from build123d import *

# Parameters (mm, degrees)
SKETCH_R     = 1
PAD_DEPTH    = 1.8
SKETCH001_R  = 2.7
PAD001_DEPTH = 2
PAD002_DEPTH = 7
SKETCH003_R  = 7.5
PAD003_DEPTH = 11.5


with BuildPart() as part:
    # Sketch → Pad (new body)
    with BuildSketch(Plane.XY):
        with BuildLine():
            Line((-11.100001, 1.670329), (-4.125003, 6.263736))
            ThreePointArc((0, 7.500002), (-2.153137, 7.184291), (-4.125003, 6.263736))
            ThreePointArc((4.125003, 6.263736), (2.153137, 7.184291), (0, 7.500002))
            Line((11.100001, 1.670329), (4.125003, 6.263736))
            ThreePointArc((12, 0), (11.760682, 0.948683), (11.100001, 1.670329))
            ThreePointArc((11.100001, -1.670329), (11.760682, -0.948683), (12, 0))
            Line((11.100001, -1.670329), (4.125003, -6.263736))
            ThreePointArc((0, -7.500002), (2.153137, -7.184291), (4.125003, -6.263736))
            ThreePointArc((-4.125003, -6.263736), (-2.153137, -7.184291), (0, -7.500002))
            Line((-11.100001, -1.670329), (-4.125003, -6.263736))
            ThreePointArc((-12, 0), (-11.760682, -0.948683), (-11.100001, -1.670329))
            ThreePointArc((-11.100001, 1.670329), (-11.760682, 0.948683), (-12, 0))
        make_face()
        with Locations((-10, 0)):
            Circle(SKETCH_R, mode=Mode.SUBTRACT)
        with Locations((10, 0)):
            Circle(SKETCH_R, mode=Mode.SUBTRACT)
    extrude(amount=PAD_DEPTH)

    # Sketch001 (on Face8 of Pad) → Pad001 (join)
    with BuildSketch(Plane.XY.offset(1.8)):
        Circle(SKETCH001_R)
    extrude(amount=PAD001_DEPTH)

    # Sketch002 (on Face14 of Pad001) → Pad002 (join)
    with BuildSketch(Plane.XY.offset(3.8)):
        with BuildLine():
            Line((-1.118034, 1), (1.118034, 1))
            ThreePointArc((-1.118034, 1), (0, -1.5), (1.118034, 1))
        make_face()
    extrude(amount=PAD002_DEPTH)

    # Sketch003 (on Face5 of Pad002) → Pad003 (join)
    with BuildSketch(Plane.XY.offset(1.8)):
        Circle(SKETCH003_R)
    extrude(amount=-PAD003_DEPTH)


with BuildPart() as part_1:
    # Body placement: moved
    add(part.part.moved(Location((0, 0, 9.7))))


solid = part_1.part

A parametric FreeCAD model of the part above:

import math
import FreeCAD as App
import Part
import Sketcher
from FreeCAD import Vector
Q = App.Units.Quantity

doc = App.newDocument("Part")
body = doc.addObject("PartDesign::Body", "Body")

sketch1 = doc.addObject("Sketcher::SketchObject", "Sketch")
body.addObject(sketch1)
sketch1.AttachmentSupport = (doc.XY_Plane, [""])
sketch1.MapMode = "FlatFace"
sketch1.addGeometry([
    Part.LineSegment(Vector(-4.1, 6.3, 0), Vector(-11.1, 1.7, 0)),
    Part.ArcOfCircle(Part.Circle(Vector(-10, 0, 0), Vector(0, 0, 1), 2), math.radians(123), math.radians(180)),
    Part.ArcOfCircle(Part.Circle(Vector(-10, 0, 0), Vector(0, 0, 1), 2), math.radians(180), math.radians(237)),
    Part.LineSegment(Vector(-11.1, -1.7, 0), Vector(-4.1, -6.3, 0)),
    Part.ArcOfCircle(Part.Circle(Vector(0, 0, 0), Vector(0, 0, 1), 7.5), math.radians(-123), math.radians(-90)),
    Part.ArcOfCircle(Part.Circle(Vector(0, 0, 0), Vector(0, 0, 1), 7.5), math.radians(-90), math.radians(-57)),
    Part.LineSegment(Vector(4.1, -6.3, 0), Vector(11.1, -1.7, 0)),
    Part.ArcOfCircle(Part.Circle(Vector(10, 0, 0), Vector(0, 0, 1), 2), math.radians(-57), math.radians(0)),
    Part.ArcOfCircle(Part.Circle(Vector(10, 0, 0), Vector(0, 0, 1), 2), math.radians(0), math.radians(57)),
    Part.LineSegment(Vector(11.1, 1.7, 0), Vector(4.1, 6.3, 0)),
    Part.ArcOfCircle(Part.Circle(Vector(0, 0, 0), Vector(0, 0, 1), 7.5), math.radians(57), math.radians(90)),
    Part.ArcOfCircle(Part.Circle(Vector(0, 0, 0), Vector(0, 0, 1), 7.5), math.radians(90), math.radians(123)),
    Part.Circle(Vector(10, 0, 0), Vector(0, 0, 1), 1),
    Part.Circle(Vector(-10, 0, 0), Vector(0, 0, 1), 1),
], False)
sketch1.addConstraint([
    Sketcher.Constraint("Tangent", 0, 2, 1, 1),
    Sketcher.Constraint("Tangent", 1, 2, 2, 1),
    Sketcher.Constraint("Tangent", 2, 2, 3, 1),
    Sketcher.Constraint("Tangent", 3, 2, 4, 1),
    Sketcher.Constraint("Tangent", 4, 2, 5, 1),
    Sketcher.Constraint("Tangent", 5, 2, 6, 1),
    Sketcher.Constraint("Tangent", 6, 2, 7, 1),
    Sketcher.Constraint("Tangent", 7, 2, 8, 1),
    Sketcher.Constraint("Tangent", 8, 2, 9, 1),
    Sketcher.Constraint("Tangent", 9, 2, 10, 1),
    Sketcher.Constraint("Tangent", 10, 2, 11, 1),
    Sketcher.Constraint("Tangent", 11, 2, 0, 1),
    Sketcher.Constraint("Coincident", 4, 3, -1, 1),
    Sketcher.Constraint("Coincident", 10, 3, -1, 1),
    Sketcher.Constraint("Coincident", 12, 3, 7, 3),
    Sketcher.Constraint("Coincident", 13, 3, 1, 3),
    Sketcher.Constraint("Equal", 1, 2),
    Sketcher.Constraint("Equal", 4, 5),
    Sketcher.Constraint("Equal", 2, 7),
    Sketcher.Constraint("Equal", 7, 8),
    Sketcher.Constraint("Equal", 5, 10),
    Sketcher.Constraint("Equal", 10, 11),
    Sketcher.Constraint("Equal", 12, 13),
    Sketcher.Constraint("Symmetric", 1, 3, 7, 3, -1, 1),
    Sketcher.Constraint("PointOnObject", 1, 3, -1),
    Sketcher.Constraint("PointOnObject", 1, 2, -1),
    Sketcher.Constraint("PointOnObject", 4, 2, -2),
    Sketcher.Constraint("PointOnObject", 7, 2, -1),
    Sketcher.Constraint("PointOnObject", 10, 2, -2),
    Sketcher.Constraint("Diameter", 12, Q("2 mm")),
    Sketcher.Constraint("Radius", 1, Q("2 mm")),
    Sketcher.Constraint("Radius", 4, Q("7.499999 mm")),
    Sketcher.Constraint("DistanceX", 1, 3, -1, 1, Q("10 mm")),
])
pad1 = doc.addObject("PartDesign::Pad", "Pad")
body.addObject(pad1)
pad1.Profile = sketch1
pad1.Length = 1.8

sketch2 = doc.addObject("Sketcher::SketchObject", "Sketch001")
body.addObject(sketch2)
sketch2.AttachmentSupport = (doc.XY_Plane, [""])
sketch2.MapMode = "FlatFace"
sketch2.AttachmentOffset = App.Placement(Vector(0, 0, 1.8), App.Rotation())
sketch2.addGeometry(Part.Circle(Vector(0, 0, 0), Vector(0, 0, 1), 2.7), False)
sketch2.addConstraint([
    Sketcher.Constraint("Coincident", 0, 3, -1, 1),
    Sketcher.Constraint("Diameter", 0, Q("5.4 mm")),
])
pad2 = doc.addObject("PartDesign::Pad", "Pad001")
body.addObject(pad2)
pad2.Profile = sketch2
pad2.Length = 2

sketch3 = doc.addObject("Sketcher::SketchObject", "Sketch002")
body.addObject(sketch3)
sketch3.AttachmentSupport = (doc.XY_Plane, [""])
sketch3.MapMode = "FlatFace"
sketch3.AttachmentOffset = App.Placement(Vector(0, 0, 3.8), App.Rotation())
sketch3.addGeometry([
    Part.LineSegment(Vector(1.1, 1, 0), Vector(-1.1, 1, 0)),
    Part.ArcOfCircle(Part.Circle(Vector(0, 0, 0), Vector(0, 0, 1), 1.5), math.radians(138), math.radians(402)),
], False)
sketch3.addConstraint([
    Sketcher.Constraint("Coincident", 0, 1, 1, 2),
    Sketcher.Constraint("Coincident", 1, 1, 0, 2),
    Sketcher.Constraint("Horizontal", 0),
    Sketcher.Constraint("Coincident", 1, 3, -1, 1),
    Sketcher.Constraint("Radius", 1, Q("1.5 mm")),
    Sketcher.Constraint("DistanceY", -1, 1, 0, 1, Q("1 mm")),
])
pad3 = doc.addObject("PartDesign::Pad", "Pad002")
body.addObject(pad3)
pad3.Profile = sketch3
pad3.Length = 7

sketch4 = doc.addObject("Sketcher::SketchObject", "Sketch003")
body.addObject(sketch4)
sketch4.AttachmentSupport = (doc.XY_Plane, [""])
sketch4.MapMode = "FlatFace"
sketch4.AttachmentOffset = App.Placement(Vector(0, 0, 1.8), App.Rotation())
sketch4.addGeometry(Part.Circle(Vector(0, 0, 0), Vector(0, 0, 1), 8), False)
sketch4.addConstraint([
    Sketcher.Constraint("Coincident", 0, 3, -1, 1),
    Sketcher.Constraint("Diameter", 0, Q("15 mm")),
])
pad4 = doc.addObject("PartDesign::Pad", "Pad003")
body.addObject(pad4)
pad4.Profile = sketch4
pad4.Length = 11.5
pad4.Reversed = True
body2 = doc.addObject("PartDesign::Body", "Body001")
doc.recompute()

body.Placement = App.Placement(Vector(0, 0, 9.7), App.Rotation(Vector(0, 0, 1), 0))
boolean = doc.addObject("PartDesign::Boolean", "Boolean")
body2.addObject(boolean)
boolean.Type = "Fuse"
boolean.addObjects([body])

doc.recompute()
